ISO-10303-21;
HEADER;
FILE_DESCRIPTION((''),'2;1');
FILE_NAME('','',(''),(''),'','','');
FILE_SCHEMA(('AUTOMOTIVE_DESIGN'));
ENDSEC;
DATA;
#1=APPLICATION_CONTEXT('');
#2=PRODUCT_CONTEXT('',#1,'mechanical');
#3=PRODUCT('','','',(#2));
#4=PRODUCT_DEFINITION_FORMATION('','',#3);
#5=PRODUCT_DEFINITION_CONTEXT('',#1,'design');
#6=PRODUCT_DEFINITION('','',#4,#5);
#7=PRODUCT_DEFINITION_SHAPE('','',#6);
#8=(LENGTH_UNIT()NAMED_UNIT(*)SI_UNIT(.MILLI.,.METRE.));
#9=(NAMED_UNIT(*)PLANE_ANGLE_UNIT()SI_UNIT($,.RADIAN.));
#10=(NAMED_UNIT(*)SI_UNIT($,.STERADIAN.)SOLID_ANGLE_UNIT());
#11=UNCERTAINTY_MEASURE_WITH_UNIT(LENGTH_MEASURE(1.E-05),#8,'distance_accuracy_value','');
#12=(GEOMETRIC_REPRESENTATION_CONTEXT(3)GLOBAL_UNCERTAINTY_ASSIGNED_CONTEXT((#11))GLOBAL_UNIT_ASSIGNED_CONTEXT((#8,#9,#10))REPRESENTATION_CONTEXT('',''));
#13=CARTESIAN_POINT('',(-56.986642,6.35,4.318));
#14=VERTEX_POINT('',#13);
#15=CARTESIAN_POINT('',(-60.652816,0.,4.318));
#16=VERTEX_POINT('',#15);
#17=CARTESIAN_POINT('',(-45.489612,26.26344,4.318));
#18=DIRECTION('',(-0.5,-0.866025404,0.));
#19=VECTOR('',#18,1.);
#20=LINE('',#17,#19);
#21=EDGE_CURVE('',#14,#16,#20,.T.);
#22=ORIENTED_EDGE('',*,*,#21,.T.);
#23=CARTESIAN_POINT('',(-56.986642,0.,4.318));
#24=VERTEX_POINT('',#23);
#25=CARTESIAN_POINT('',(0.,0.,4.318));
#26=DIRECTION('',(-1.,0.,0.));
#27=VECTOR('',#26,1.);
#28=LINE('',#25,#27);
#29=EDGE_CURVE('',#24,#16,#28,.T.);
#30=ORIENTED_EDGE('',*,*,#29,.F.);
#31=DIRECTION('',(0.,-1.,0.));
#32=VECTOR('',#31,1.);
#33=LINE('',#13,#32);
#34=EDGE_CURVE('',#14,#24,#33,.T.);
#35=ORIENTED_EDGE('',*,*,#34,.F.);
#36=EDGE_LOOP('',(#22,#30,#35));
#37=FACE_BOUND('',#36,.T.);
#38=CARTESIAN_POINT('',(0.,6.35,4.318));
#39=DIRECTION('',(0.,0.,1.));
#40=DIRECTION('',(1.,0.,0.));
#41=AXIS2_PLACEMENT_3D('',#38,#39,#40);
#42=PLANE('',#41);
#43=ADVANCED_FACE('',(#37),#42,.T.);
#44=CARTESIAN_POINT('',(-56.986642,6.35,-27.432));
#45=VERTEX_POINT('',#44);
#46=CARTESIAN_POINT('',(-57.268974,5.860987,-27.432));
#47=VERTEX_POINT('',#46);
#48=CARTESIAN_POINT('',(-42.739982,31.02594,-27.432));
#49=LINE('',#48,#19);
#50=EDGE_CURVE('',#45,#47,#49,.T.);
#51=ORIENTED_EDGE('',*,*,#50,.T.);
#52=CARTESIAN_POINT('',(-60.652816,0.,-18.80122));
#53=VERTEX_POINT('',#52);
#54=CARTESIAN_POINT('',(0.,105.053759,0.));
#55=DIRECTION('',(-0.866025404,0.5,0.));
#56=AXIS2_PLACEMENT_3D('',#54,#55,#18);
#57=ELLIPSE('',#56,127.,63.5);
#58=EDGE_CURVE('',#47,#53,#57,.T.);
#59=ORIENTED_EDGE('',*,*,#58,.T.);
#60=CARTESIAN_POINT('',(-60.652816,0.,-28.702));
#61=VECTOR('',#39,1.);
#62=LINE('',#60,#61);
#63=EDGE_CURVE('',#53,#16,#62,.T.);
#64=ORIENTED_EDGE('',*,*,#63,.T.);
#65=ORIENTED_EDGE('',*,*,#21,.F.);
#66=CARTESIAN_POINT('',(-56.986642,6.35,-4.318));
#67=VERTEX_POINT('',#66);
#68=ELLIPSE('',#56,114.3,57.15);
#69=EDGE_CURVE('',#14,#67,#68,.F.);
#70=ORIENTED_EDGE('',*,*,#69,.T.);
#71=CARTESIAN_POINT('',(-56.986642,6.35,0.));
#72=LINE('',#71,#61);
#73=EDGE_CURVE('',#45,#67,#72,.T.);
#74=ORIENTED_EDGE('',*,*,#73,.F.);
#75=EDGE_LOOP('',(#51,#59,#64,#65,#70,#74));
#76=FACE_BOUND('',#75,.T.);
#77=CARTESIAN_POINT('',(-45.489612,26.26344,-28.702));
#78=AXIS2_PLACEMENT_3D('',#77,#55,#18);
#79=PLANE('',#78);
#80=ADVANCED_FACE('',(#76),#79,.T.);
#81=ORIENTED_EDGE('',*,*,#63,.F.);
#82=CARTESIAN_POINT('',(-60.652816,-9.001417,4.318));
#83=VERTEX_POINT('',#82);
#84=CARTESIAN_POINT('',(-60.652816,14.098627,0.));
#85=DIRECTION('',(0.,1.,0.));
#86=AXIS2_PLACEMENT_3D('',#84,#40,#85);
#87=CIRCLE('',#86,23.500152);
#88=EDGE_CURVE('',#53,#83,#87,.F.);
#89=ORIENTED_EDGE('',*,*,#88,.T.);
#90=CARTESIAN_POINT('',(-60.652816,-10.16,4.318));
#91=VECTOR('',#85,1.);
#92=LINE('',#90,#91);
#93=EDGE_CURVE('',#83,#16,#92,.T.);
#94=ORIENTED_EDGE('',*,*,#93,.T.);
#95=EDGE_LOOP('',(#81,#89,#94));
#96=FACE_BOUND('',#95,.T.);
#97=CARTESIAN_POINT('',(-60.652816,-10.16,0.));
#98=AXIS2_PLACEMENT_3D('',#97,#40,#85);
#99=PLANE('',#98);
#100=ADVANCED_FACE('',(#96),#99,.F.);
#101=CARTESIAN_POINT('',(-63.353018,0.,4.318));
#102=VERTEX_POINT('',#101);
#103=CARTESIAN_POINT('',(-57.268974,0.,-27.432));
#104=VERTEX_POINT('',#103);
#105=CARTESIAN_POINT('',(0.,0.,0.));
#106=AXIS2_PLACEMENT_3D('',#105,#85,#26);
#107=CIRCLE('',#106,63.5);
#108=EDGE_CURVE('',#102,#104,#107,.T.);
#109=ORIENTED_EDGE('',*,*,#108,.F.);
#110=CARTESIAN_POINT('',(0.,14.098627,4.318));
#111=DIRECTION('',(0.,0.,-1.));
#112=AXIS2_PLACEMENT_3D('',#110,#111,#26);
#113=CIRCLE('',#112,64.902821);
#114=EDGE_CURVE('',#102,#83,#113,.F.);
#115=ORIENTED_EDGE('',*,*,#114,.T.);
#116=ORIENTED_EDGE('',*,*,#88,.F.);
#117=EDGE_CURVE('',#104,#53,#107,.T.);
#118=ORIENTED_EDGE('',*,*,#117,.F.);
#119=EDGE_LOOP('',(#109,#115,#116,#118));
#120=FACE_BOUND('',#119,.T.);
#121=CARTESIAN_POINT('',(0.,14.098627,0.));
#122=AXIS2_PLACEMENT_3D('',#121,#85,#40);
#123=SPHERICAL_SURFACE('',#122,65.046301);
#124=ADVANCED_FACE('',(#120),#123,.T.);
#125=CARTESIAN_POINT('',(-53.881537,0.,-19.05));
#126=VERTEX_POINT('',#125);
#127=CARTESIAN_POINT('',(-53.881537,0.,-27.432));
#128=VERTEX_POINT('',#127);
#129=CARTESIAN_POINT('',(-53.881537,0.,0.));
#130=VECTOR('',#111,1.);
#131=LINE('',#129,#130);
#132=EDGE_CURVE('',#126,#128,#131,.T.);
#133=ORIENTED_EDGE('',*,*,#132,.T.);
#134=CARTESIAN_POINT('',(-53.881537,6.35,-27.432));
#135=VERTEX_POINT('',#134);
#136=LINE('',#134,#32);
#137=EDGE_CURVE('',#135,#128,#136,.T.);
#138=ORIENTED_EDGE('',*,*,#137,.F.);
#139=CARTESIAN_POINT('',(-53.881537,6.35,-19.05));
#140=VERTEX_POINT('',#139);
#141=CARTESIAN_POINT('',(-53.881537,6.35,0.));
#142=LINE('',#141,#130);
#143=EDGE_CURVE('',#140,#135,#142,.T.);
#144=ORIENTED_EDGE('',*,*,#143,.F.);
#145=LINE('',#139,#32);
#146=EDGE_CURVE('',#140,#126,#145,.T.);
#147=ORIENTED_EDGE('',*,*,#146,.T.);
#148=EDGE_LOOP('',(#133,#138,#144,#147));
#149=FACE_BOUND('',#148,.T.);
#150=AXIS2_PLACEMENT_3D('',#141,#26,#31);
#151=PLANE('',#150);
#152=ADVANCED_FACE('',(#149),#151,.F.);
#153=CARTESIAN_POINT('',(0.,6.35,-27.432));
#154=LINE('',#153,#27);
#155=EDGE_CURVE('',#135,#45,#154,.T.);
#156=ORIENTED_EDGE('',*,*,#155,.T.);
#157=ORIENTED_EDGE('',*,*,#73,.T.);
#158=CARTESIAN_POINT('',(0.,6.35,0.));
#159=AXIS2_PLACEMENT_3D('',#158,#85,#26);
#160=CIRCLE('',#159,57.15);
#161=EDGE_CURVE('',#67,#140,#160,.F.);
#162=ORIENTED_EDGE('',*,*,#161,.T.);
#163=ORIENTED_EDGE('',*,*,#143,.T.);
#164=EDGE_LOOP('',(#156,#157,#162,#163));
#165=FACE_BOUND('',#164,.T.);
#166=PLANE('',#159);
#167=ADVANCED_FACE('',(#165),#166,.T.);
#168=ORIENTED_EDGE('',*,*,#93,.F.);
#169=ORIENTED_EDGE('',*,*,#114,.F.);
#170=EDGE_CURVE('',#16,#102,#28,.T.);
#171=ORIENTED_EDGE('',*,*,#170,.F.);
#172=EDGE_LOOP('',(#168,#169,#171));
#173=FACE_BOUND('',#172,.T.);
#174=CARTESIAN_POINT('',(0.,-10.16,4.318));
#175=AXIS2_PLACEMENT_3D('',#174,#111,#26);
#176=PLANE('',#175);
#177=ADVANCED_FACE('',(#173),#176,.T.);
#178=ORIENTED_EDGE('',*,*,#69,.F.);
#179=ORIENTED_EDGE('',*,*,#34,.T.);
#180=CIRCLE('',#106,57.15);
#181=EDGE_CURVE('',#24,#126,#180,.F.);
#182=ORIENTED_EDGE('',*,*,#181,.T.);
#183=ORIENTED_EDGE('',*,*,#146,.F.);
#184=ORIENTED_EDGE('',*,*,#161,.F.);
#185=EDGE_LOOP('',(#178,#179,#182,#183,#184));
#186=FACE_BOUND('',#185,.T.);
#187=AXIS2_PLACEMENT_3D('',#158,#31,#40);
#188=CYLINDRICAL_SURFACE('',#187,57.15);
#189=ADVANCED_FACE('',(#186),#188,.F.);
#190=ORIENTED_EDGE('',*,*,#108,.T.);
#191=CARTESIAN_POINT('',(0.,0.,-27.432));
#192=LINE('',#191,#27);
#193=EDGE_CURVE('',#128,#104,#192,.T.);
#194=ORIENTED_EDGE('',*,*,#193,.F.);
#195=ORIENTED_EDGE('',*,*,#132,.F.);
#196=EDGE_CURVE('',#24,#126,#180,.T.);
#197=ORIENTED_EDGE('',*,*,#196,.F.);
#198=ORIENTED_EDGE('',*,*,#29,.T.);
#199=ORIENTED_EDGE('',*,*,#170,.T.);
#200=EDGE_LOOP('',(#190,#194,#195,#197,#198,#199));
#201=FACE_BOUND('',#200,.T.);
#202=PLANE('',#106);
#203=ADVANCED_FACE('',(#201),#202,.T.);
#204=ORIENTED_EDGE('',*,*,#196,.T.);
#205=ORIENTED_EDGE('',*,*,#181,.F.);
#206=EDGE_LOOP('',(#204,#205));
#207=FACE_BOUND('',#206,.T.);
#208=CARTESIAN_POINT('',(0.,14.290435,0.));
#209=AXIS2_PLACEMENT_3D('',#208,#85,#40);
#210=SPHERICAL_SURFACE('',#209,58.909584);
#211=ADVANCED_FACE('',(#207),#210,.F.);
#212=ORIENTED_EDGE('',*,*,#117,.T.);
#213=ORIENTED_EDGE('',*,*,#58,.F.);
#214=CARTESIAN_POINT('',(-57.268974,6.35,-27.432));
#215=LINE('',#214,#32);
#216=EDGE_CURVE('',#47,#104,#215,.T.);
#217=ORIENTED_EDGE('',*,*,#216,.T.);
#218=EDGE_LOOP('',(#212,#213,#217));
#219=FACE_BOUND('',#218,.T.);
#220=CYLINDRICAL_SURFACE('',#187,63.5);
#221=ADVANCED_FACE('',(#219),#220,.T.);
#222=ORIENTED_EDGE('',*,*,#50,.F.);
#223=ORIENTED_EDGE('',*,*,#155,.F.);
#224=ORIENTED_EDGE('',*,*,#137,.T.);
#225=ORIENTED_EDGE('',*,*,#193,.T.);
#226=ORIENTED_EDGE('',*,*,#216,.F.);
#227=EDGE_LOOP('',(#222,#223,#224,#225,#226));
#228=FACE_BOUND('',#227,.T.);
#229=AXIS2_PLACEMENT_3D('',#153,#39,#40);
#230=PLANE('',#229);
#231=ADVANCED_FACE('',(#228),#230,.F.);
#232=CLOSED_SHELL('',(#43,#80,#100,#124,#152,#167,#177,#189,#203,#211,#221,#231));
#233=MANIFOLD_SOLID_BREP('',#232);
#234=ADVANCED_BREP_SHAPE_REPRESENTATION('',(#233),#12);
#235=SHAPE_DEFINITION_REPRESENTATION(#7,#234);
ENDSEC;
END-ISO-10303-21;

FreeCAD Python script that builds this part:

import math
import FreeCAD as App
import Part
import Sketcher
Q = App.Units.Quantity

doc = App.newDocument("Part")
body = doc.addObject("PartDesign::Body", "Body")

sketch1 = body.newObject("Sketcher::SketchObject", "Sketch")
sketch1.AttachmentSupport = (doc.getObject("XY_Plane"), [""])
sketch1.MapMode = "FlatFace"
sketch1.addGeometry([
    Part.LineSegment(App.Vector(64, 0, 0), App.Vector(57, 0, 0)),
    Part.ArcOfCircle(Part.Circle(App.Vector(0, 14, 0), App.Vector(0, 0, 1), 59), math.radians(-90), math.radians(-14)),
    Part.LineSegment(App.Vector(0, -45, 0), App.Vector(0, -51, 0)),
    Part.ArcOfCircle(Part.Circle(App.Vector(0, 14, 0), App.Vector(0, 0, 1), 65), math.radians(-90), math.radians(-13)),
], False)
sketch1.addConstraint([
    Sketcher.Constraint("Coincident", 0, 2, 1, 2),
    Sketcher.Constraint("Coincident", 1, 1, 2, 1),
    Sketcher.Constraint("Coincident", 2, 2, 3, 1),
    Sketcher.Constraint("Coincident", 3, 2, 0, 1),
    Sketcher.Constraint("Horizontal", 0),
    Sketcher.Constraint("Vertical", 2),
    Sketcher.Constraint("PointOnObject", 1, 3, -2),
    Sketcher.Constraint("PointOnObject", 3, 3, -2),
    Sketcher.Constraint("PointOnObject", 0, 2, -1),
    Sketcher.Constraint("PointOnObject", 1, 1, -2),
    Sketcher.Constraint("DistanceX", 0, 2, 0, 1, Q("0.25 in")),
    Sketcher.Constraint("DistanceX", -1, 1, 3, 2, Q("2.5 in")),
    Sketcher.Constraint("Radius", 3, Q("65.046301 mm")),
    Sketcher.Constraint("Radius", 1, Q("58.909584 mm")),
])
revolution = body.newObject("PartDesign::Revolution", "Revolution")
revolution.Profile = sketch1
revolution.ReferenceAxis = (sketch1, ["V_Axis"])
revolution.Angle = 360

sketch2 = body.newObject("Sketcher::SketchObject", "Sketch001")
sketch2.AttachmentSupport = (doc.getObject("XZ_Plane"), [""])
sketch2.MapMode = "FlatFace"
sketch2.addGeometry([
    Part.ArcOfCircle(Part.Circle(App.Vector(0, 0, 0), App.Vector(0, 0, 1), 57.2), math.radians(176), math.radians(199)),
    Part.LineSegment(App.Vector(-53.9, -19.1, 0), App.Vector(-53.9, -27.4, 0)),
    Part.LineSegment(App.Vector(-53.9, -27.4, 0), App.Vector(-57.3, -27.4, 0)),
    Part.ArcOfCircle(Part.Circle(App.Vector(0, 0, 0), App.Vector(0, 0, 1), 63.5), math.radians(-176), math.radians(-154)),
    Part.LineSegment(App.Vector(-63.4, -4.3, 0), App.Vector(-63.4, 4.3, 0)),
    Part.LineSegment(App.Vector(-63.4, 4.3, 0), App.Vector(-57, 4.3, 0)),
], False)
sketch2.addConstraint([
    Sketcher.Constraint("Coincident", 0, 2, 1, 1),
    Sketcher.Constraint("Coincident", 1, 2, 2, 1),
    Sketcher.Constraint("Coincident", 2, 2, 3, 2),
    Sketcher.Constraint("Coincident", 3, 1, 4, 1),
    Sketcher.Constraint("Coincident", 4, 2, 5, 1),
    Sketcher.Constraint("Coincident", 5, 2, 0, 1),
    Sketcher.Constraint("Vertical", 1),
    Sketcher.Constraint("Horizontal", 2),
    Sketcher.Constraint("Vertical", 4),
    Sketcher.Constraint("Horizontal", 5),
    Sketcher.Constraint("Coincident", 0, 3, -1, 1),
    Sketcher.Constraint("Coincident", 3, 3, -1, 1),
    Sketcher.Constraint("Radius", 3, Q("2.5 in")),
    Sketcher.Constraint("Radius", 0, Q("2.25 in")),
    Sketcher.Constraint("DistanceY", 1, 2, 1, 1, Q("0.33 in")),
    Sketcher.Constraint("DistanceY", 4, 1, 4, 2, Q("0.34 in")),
    Sketcher.Constraint("DistanceY", 0, 2, -1, 1, Q("0.75 in")),
    Sketcher.Constraint("DistanceY", 3, 1, -1, 1, Q("0.17 in")),
])
pad1 = body.newObject("PartDesign::Pad", "Pad")
pad1.Profile = sketch2
pad1.Length = Q("0.25 in")
pad1.Reversed = True

sketch3 = body.newObject("Sketcher::SketchObject", "Sketch002")
sketch3.AttachmentSupport = (doc.getObject("XY_Plane"), [""])
sketch3.MapMode = "FlatFace"
sketch3.AttachmentOffset = App.Placement(App.Vector(0, 0, 0.17 * 25.4), App.Rotation())
sketch3.addGeometry([
    Part.LineSegment(App.Vector(-60.7, 0, 0), App.Vector(-57, 6.3, 0)),
    Part.LineSegment(App.Vector(-57, 6.3, 0), App.Vector(-63.4, 6.3, 0)),
    Part.LineSegment(App.Vector(-63.4, 6.3, 0), App.Vector(-63.4, 0, 0)),
    Part.LineSegment(App.Vector(-63.4, 0, 0), App.Vector(-60.7, 0, 0)),
], False)
sketch3.addConstraint([
    Sketcher.Constraint("Coincident", 0, 2, 1, 1),
    Sketcher.Constraint("Coincident", 1, 2, 2, 1),
    Sketcher.Constraint("Coincident", 2, 2, 3, 1),
    Sketcher.Constraint("Coincident", 3, 2, 0, 1),
    Sketcher.Constraint("Horizontal", 1),
    Sketcher.Constraint("Vertical", 2),
    Sketcher.Constraint("Horizontal", 3),
    Sketcher.Constraint("PointOnObject", 2, 2, -1),
    Sketcher.Constraint("Angle", 0, Q("60 deg")),
    Sketcher.Constraint("DistanceY", 2, 2, 2, 1, Q("0.25 in")),
    Sketcher.Constraint("DistanceX", 3, 1, 3, 2, Q("2.700202 mm")),
    Sketcher.Constraint("DistanceX", 0, 2, -1, 1, Q("56.986642 mm")),
])
pocket1 = body.newObject("PartDesign::Pocket", "Pocket")
pocket1.Profile = sketch3
pocket1.Length = Q("1.3 in")

sketch4 = body.newObject("Sketcher::SketchObject", "Sketch003")
sketch4.AttachmentSupport = (doc.getObject("XZ_Plane"), [""])
sketch4.MapMode = "FlatFace"
sketch4.AttachmentOffset = App.Placement(App.Vector(0, 0, 0.4 * 25.4), App.Rotation())
sketch4.addGeometry([
    Part.LineSegment(App.Vector(-63.4, 4.3, 0), App.Vector(-60.7, 4.3, 0)),
    Part.LineSegment(App.Vector(-60.7, 4.3, 0), App.Vector(-60.7, -18.8, 0)),
    Part.ArcOfCircle(Part.Circle(App.Vector(0, 0, 0), App.Vector(0, 0, 1), 63.5), math.radians(176), math.radians(197)),
], False)
sketch4.addConstraint([
    Sketcher.Constraint("Coincident", 0, 2, 1, 1),
    Sketcher.Constraint("Coincident", 1, 2, 2, 2),
    Sketcher.Constraint("Coincident", 2, 1, 0, 1),
    Sketcher.Constraint("Horizontal", 0),
    Sketcher.Constraint("Vertical", 1),
    Sketcher.Constraint("Coincident", 2, 3, -1, 1),
    Sketcher.Constraint("Radius", 2, Q("2.5 in")),
    Sketcher.Constraint("DistanceY", -1, 1, 0, 2, Q("0.17 in")),
    Sketcher.Constraint("DistanceX", 0, 1, 0, 2, Q("2.700202 mm")),
])
pocket2 = body.newObject("PartDesign::Pocket", "Pocket001")
pocket2.Profile = sketch4
pocket2.Length = Q("0.4 in")

doc.recompute()
